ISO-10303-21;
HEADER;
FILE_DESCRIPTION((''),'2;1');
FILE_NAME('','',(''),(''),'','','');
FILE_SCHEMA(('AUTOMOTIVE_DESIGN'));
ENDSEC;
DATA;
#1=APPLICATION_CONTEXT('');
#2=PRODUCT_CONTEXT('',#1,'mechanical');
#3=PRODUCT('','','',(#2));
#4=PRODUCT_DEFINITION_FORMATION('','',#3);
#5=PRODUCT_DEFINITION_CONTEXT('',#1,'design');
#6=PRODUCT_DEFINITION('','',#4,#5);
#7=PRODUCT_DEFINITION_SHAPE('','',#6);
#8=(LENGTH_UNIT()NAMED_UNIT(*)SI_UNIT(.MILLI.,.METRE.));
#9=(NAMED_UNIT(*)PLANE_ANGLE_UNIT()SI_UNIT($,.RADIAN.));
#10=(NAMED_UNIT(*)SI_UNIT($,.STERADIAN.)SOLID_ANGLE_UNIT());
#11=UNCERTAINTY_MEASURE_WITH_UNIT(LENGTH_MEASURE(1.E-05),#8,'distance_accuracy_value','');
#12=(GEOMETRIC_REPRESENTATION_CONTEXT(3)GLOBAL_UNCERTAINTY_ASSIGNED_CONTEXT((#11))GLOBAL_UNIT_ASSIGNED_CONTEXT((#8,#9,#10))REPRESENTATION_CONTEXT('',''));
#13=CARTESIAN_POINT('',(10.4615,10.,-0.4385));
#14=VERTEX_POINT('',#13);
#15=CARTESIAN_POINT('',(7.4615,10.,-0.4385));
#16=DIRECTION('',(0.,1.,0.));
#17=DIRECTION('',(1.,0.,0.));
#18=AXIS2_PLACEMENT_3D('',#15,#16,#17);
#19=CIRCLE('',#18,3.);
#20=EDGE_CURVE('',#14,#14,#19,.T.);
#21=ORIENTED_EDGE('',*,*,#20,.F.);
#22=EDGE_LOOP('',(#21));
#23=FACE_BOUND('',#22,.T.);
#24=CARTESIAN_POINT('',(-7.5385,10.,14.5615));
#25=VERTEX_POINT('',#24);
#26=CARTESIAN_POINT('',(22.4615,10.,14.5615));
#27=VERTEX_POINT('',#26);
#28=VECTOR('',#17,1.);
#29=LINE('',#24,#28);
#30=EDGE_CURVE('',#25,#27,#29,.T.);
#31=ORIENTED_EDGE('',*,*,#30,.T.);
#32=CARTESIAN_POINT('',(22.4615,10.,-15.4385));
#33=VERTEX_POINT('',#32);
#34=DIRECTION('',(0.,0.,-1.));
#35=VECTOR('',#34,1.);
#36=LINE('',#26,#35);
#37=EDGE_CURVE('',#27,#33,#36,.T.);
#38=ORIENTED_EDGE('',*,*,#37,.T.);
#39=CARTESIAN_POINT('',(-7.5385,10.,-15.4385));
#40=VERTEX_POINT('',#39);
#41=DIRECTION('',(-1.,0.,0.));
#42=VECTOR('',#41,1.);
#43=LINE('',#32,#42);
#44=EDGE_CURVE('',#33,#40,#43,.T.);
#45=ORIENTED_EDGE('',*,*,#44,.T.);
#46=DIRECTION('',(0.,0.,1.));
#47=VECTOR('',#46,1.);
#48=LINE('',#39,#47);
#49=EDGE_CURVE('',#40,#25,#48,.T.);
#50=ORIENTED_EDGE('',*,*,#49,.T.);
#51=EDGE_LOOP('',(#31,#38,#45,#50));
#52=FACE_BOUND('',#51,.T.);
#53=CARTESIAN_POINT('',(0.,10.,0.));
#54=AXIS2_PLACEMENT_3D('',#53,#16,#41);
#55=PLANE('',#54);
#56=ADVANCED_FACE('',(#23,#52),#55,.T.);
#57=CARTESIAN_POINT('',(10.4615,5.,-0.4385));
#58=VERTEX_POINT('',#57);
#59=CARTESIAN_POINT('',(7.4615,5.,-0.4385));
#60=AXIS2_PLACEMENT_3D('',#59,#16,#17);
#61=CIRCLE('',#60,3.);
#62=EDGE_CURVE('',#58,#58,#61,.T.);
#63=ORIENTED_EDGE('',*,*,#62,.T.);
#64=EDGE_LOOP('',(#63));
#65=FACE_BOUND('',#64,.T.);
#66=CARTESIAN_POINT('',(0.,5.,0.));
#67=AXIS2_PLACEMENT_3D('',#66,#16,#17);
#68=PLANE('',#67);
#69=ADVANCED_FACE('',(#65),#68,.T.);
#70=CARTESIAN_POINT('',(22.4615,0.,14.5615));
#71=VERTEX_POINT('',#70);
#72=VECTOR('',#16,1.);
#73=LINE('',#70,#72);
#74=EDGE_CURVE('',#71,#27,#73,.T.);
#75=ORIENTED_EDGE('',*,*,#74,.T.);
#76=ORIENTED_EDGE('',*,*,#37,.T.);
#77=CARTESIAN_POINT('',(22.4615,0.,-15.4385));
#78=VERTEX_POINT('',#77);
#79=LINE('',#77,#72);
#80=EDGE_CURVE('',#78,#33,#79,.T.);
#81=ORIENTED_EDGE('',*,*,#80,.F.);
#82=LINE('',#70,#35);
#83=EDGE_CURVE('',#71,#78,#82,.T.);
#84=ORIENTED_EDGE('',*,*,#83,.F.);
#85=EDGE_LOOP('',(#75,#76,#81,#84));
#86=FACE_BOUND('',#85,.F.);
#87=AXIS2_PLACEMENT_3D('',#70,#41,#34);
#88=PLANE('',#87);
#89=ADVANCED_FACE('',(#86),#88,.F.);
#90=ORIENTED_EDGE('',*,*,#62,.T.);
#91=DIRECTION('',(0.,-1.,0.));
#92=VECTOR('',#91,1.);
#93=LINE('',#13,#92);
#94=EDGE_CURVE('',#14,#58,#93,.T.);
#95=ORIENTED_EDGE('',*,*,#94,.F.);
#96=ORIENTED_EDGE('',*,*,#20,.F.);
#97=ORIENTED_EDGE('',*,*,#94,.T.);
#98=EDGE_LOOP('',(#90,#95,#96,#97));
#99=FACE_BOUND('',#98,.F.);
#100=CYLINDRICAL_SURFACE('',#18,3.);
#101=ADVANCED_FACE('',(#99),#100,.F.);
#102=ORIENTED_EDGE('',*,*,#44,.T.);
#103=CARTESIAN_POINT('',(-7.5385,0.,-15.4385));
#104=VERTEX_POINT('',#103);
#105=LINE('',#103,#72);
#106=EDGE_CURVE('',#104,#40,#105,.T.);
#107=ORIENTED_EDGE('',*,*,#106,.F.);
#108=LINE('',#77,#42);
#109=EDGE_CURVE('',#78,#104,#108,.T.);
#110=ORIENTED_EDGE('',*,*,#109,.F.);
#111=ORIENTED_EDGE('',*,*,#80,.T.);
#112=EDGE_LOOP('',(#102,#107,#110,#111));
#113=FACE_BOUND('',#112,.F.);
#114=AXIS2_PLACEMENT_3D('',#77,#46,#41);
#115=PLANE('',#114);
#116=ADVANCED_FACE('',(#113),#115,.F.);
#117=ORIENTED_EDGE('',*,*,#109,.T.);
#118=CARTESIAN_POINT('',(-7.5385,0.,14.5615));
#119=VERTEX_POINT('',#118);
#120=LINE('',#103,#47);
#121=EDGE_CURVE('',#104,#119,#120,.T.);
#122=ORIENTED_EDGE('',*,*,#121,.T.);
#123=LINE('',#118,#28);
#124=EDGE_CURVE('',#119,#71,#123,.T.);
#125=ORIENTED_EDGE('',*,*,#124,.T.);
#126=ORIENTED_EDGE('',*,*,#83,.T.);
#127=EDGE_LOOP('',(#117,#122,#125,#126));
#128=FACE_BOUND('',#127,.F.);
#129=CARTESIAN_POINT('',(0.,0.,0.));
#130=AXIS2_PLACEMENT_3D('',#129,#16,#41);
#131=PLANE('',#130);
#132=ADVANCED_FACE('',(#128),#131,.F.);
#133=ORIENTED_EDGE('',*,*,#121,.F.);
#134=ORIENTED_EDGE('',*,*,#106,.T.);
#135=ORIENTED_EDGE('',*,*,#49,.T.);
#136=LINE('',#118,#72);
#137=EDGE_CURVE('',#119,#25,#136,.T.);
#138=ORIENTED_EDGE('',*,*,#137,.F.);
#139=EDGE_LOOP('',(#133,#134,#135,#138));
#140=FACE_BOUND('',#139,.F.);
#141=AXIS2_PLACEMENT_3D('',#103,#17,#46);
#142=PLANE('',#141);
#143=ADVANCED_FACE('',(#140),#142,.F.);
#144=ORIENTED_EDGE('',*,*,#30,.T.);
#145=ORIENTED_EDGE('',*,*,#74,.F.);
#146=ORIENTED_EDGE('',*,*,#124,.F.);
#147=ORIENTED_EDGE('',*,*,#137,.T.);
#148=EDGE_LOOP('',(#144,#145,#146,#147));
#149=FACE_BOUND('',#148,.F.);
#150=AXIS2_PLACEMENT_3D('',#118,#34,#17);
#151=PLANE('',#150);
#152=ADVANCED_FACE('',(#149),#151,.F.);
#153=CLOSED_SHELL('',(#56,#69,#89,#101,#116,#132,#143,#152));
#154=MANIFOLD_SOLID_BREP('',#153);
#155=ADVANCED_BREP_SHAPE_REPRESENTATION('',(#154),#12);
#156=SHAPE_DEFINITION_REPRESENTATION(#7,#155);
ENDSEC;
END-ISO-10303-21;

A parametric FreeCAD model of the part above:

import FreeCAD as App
import Part
import Sketcher


def add_polygon(sketch, points):
    """Adds a closed chain of lines whose ends are joined by coincident constraints."""
    first, n = sketch.GeometryCount, len(points)
    for a, b in zip(points, points[1:] + points[:1]):
        sketch.addGeometry(Part.LineSegment(App.Vector(*a, 0), App.Vector(*b, 0)), False)
    for i in range(n):
        sketch.addConstraint(Sketcher.Constraint("Coincident", first + i, 2, first + (i + 1) % n, 1))

doc = App.newDocument("Part")
body = doc.addObject("PartDesign::Body", "Body")

# Sketch on XZ plane
sketch1 = doc.addObject("Sketcher::SketchObject", "Sketch")
body.addObject(sketch1)
sketch1.AttachmentSupport = (doc.XZ_Plane, [""])
sketch1.MapMode = "FlatFace"
add_polygon(sketch1, [(-7.5385, -15.4385), (-7.5385, 14.5615), (22.4615, 14.5615), (22.4615, -15.4385)])  # lines 0-3
sketch1.addConstraint(Sketcher.Constraint("Vertical", 0))
sketch1.addConstraint(Sketcher.Constraint("Horizontal", 1))
sketch1.addConstraint(Sketcher.Constraint("Vertical", 2))
sketch1.addConstraint(Sketcher.Constraint("Horizontal", 3))
sketch1.addConstraint(Sketcher.Constraint("Equal", 3, 0))
sketch1.addConstraint(Sketcher.Constraint("DistanceX", 1, 1, 1, 2, 30.0))
sketch1.addConstraint(Sketcher.Constraint("DistanceX", 0, 2, -1, 1, 7.5385))
sketch1.addConstraint(Sketcher.Constraint("DistanceY", -1, 1, 0, 2, 14.5615))
pad1 = doc.addObject("PartDesign::Pad", "Pad")
body.addObject(pad1)
pad1.Profile = sketch1
pad1.Length = 10
pad1.Reversed = True

# Sketch on XZ plane
sketch2 = doc.addObject("Sketcher::SketchObject", "Sketch001")
body.addObject(sketch2)
sketch2.AttachmentSupport = (doc.XZ_Plane, [""])
sketch2.MapMode = "FlatFace"
sketch2.AttachmentOffset = App.Placement(App.Vector(0, 0, -10), App.Rotation())
sketch2.addGeometry(Part.Circle(App.Vector(7.4615, -0.4385, 0), App.Vector(0, 0, 1), 3), False)
sketch2.addConstraint(Sketcher.Constraint("Diameter", 0, 6.0))
sketch2.addConstraint(Sketcher.Constraint("DistanceX", -1, 1, 0, 3, 7.4615))
sketch2.addConstraint(Sketcher.Constraint("DistanceY", 0, 3, -1, 1, 0.4385))
pocket1 = doc.addObject("PartDesign::Pocket", "Pocket")
body.addObject(pocket1)
pocket1.Profile = sketch2
pocket1.Length = 5
pocket1.Reversed = True

doc.recompute()
